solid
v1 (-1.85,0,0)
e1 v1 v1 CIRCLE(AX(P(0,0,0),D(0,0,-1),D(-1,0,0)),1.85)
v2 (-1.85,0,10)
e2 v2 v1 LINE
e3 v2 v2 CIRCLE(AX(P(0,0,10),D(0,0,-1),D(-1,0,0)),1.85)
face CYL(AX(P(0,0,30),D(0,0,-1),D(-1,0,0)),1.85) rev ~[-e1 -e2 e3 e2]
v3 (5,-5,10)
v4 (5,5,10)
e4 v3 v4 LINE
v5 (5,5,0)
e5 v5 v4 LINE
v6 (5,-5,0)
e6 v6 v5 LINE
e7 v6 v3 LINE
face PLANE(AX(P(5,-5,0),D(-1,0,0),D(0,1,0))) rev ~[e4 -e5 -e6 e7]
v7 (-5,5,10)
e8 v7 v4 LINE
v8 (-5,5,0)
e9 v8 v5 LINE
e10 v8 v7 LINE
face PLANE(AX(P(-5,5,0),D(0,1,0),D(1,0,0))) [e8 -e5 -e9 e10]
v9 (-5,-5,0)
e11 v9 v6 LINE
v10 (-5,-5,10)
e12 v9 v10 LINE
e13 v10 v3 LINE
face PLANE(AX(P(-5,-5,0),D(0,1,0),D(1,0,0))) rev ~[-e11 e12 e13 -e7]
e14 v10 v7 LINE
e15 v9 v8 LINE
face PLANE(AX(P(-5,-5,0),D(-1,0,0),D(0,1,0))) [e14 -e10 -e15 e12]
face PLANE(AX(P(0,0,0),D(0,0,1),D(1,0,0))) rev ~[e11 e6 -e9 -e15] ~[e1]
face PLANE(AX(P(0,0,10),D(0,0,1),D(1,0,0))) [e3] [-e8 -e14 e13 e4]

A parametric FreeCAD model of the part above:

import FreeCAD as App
import Part
import Sketcher
from FreeCAD import Vector

doc = App.newDocument("Part")
body = doc.addObject("PartDesign::Body", "Body")

# Sketch on XY plane
sketch1 = body.newObject("Sketcher::SketchObject", "Sketch")
sketch1.AttachmentSupport = (doc.getObject("XY_Plane"), [""])
sketch1.MapMode = "FlatFace"
sketch1.addGeometry([
    Part.LineSegment(Vector(-5, 5, 0), Vector(-5, -5, 0)),
    Part.LineSegment(Vector(-5, -5, 0), Vector(5, -5, 0)),
    Part.LineSegment(Vector(5, -5, 0), Vector(5, 5, 0)),
    Part.LineSegment(Vector(5, 5, 0), Vector(-5, 5, 0)),
], False)
sketch1.addConstraint([
    Sketcher.Constraint("Coincident", 0, 2, 1, 1),
    Sketcher.Constraint("Coincident", 1, 2, 2, 1),
    Sketcher.Constraint("Coincident", 2, 2, 3, 1),
    Sketcher.Constraint("Coincident", 3, 2, 0, 1),
    Sketcher.Constraint("Vertical", 0),
    Sketcher.Constraint("Horizontal", 1),
    Sketcher.Constraint("Vertical", 2),
    Sketcher.Constraint("Horizontal", 3),
    Sketcher.Constraint("Symmetric", 0, 2, 2, 2, -1, 1),
    Sketcher.Constraint("Equal", 3, 0),
    Sketcher.Constraint("DistanceX", 1, 1, 1, 2, 10.0),
])
pad1 = body.newObject("PartDesign::Pad", "Pad")
pad1.Profile = sketch1
pad1.Length = 10

# Sketch on XY plane
sketch2 = body.newObject("Sketcher::SketchObject", "Sketch001")
sketch2.AttachmentSupport = (doc.getObject("XY_Plane"), [""])
sketch2.MapMode = "FlatFace"
sketch2.AttachmentOffset = App.Placement(Vector(0, 0, 10), App.Rotation())
sketch2.addGeometry(Part.Circle(Vector(0, 0, 0), Vector(0, 0, 1), 1.85), False)
sketch2.addConstraint([
    Sketcher.Constraint("Coincident", 0, 3, -1, 1),
    Sketcher.Constraint("Diameter", 0, 3.7),
])
doc.recompute()
hole = body.newObject("PartDesign::Hole", "Hole")
hole.Profile = sketch2
hole.ThreadType = "None"
hole.Diameter = 3.7
hole.DepthType = "Dimension"
hole.Depth = 20
hole.DrillPoint = "Flat"

doc.recompute()
